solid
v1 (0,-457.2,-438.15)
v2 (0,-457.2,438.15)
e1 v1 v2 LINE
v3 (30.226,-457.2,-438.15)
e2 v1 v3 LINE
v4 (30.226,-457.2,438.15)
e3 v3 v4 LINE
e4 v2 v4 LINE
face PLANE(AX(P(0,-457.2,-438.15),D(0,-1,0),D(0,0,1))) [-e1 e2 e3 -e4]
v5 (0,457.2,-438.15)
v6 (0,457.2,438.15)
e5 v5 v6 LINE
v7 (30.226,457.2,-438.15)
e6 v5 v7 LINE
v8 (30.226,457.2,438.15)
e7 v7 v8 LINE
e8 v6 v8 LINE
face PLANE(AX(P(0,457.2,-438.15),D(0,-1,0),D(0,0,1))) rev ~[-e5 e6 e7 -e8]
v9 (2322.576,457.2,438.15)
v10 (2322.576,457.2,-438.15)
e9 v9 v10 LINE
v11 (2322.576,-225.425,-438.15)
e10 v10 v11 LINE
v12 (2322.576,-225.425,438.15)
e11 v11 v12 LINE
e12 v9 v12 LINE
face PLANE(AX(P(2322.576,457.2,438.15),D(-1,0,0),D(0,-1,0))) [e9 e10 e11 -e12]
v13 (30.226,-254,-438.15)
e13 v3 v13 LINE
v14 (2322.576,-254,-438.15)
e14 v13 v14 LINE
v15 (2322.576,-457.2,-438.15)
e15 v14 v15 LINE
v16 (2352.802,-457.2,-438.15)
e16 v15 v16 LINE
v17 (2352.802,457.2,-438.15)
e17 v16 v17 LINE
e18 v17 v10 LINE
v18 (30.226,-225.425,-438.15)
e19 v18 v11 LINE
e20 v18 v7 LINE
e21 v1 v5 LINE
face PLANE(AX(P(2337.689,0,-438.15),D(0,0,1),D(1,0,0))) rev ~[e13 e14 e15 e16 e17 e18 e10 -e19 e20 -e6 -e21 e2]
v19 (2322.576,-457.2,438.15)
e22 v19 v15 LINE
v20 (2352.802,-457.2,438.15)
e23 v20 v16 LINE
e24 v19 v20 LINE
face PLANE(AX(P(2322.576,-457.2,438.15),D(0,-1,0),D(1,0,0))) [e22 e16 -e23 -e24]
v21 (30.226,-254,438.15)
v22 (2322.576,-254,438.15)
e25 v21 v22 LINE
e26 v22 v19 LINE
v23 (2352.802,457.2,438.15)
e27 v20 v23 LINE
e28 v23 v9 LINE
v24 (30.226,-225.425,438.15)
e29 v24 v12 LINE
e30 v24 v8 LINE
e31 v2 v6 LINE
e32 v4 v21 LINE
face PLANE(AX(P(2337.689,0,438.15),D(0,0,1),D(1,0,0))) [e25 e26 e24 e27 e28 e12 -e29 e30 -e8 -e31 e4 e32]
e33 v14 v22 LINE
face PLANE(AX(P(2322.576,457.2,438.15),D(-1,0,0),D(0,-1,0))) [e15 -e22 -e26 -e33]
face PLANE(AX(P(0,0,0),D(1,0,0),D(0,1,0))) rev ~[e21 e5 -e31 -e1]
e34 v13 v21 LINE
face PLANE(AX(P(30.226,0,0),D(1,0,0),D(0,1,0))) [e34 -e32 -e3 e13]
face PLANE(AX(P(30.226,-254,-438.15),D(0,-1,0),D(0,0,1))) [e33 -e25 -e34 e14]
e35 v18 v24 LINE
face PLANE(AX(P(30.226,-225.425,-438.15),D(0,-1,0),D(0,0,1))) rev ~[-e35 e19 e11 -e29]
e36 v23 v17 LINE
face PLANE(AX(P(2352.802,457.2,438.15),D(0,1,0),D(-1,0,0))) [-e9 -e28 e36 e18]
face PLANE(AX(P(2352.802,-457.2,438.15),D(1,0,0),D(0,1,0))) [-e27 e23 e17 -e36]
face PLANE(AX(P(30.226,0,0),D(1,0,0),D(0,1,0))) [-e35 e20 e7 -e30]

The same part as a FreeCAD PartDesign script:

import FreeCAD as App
import Part
import Sketcher
Q = App.Units.Quantity


def add_polygon(sketch, points):
    """Adds a closed chain of lines whose ends are joined by coincident constraints."""
    first, n = sketch.GeometryCount, len(points)
    for a, b in zip(points, points[1:] + points[:1]):
        sketch.addGeometry(Part.LineSegment(App.Vector(*a, 0), App.Vector(*b, 0)), False)
    for i in range(n):
        sketch.addConstraint(Sketcher.Constraint("Coincident", first + i, 2, first + (i + 1) % n, 1))

doc = App.newDocument("Part")
body = doc.addObject("PartDesign::Body", "Body")

sketch1 = body.newObject("Sketcher::SketchObject", "Sketch")
sketch1.AttachmentSupport = (doc.getObject("YZ_Plane"), [""])
sketch1.MapMode = "FlatFace"
add_polygon(sketch1, [(-457, 438), (-457, -438), (457, -438), (457, 438)])
sketch1.addConstraint([
    Sketcher.Constraint("Vertical", 0),
    Sketcher.Constraint("Horizontal", 1),
    Sketcher.Constraint("Vertical", 2),
    Sketcher.Constraint("Horizontal", 3),
    Sketcher.Constraint("Symmetric", 0, 2, 2, 2, -1, 1),
    Sketcher.Constraint("DistanceX", 1, 1, 1, 2, Q("36 in")),
    Sketcher.Constraint("DistanceY", 0, 2, 0, 1, Q("34.5 in")),
])
pad1 = body.newObject("PartDesign::Pad", "Pad")
pad1.Profile = sketch1
pad1.Length = Q("1.19 in")

sketch2 = body.newObject("Sketcher::SketchObject", "Sketch001")
sketch2.AttachmentSupport = (doc.getObject("YZ_Plane"), [""])
sketch2.MapMode = "FlatFace"
sketch2.AttachmentOffset = App.Placement(App.Vector(0, 0, 1.19 * 25.4), App.Rotation())
add_polygon(sketch2, [(-254, 438), (-254, -438), (-225, -438), (-225, 438)])
sketch2.addConstraint([
    Sketcher.Constraint("Vertical", 0),
    Sketcher.Constraint("Horizontal", 1),
    Sketcher.Constraint("Vertical", 2),
    Sketcher.Constraint("Horizontal", 3),
    Sketcher.Constraint("DistanceY", 0, 2, 0, 1, Q("34.5 in")),
    Sketcher.Constraint("DistanceX", 0, 2, -1, 1, Q("10 in")),
    Sketcher.Constraint("DistanceX", 1, 1, 1, 2, Q("1.125 in")),
    Sketcher.Constraint("DistanceY", 0, 2, -1, 1, Q("17.25 in")),
])
pad2 = body.newObject("PartDesign::Pad", "Pad001")
pad2.Profile = sketch2
pad2.Length = Q("90.25 in")

sketch3 = body.newObject("Sketcher::SketchObject", "Sketch002")
sketch3.AttachmentSupport = (doc.getObject("XY_Plane"), [""])
sketch3.MapMode = "FlatFace"
sketch3.AttachmentOffset = App.Placement(App.Vector(0, 0, 17.25 * 25.4), App.Rotation())
add_polygon(sketch3, [(2323, -457), (2353, -457), (2353, 457), (2323, 457)])
sketch3.addConstraint([
    Sketcher.Constraint("Horizontal", 0),
    Sketcher.Constraint("Vertical", 1),
    Sketcher.Constraint("Horizontal", 2),
    Sketcher.Constraint("Vertical", 3),
    Sketcher.Constraint("DistanceY", 1, 1, 1, 2, Q("36 in")),
    Sketcher.Constraint("DistanceY", 0, 2, -1, 1, Q("18 in")),
    Sketcher.Constraint("DistanceX", 0, 1, 0, 2, Q("1.19 in")),
    Sketcher.Constraint("DistanceX", -1, 1, 0, 2, Q("92.63 in")),
])
pad3 = body.newObject("PartDesign::Pad", "Pad002")
pad3.Profile = sketch3
pad3.Length = Q("34.5 in")
pad3.Reversed = True

doc.recompute()
